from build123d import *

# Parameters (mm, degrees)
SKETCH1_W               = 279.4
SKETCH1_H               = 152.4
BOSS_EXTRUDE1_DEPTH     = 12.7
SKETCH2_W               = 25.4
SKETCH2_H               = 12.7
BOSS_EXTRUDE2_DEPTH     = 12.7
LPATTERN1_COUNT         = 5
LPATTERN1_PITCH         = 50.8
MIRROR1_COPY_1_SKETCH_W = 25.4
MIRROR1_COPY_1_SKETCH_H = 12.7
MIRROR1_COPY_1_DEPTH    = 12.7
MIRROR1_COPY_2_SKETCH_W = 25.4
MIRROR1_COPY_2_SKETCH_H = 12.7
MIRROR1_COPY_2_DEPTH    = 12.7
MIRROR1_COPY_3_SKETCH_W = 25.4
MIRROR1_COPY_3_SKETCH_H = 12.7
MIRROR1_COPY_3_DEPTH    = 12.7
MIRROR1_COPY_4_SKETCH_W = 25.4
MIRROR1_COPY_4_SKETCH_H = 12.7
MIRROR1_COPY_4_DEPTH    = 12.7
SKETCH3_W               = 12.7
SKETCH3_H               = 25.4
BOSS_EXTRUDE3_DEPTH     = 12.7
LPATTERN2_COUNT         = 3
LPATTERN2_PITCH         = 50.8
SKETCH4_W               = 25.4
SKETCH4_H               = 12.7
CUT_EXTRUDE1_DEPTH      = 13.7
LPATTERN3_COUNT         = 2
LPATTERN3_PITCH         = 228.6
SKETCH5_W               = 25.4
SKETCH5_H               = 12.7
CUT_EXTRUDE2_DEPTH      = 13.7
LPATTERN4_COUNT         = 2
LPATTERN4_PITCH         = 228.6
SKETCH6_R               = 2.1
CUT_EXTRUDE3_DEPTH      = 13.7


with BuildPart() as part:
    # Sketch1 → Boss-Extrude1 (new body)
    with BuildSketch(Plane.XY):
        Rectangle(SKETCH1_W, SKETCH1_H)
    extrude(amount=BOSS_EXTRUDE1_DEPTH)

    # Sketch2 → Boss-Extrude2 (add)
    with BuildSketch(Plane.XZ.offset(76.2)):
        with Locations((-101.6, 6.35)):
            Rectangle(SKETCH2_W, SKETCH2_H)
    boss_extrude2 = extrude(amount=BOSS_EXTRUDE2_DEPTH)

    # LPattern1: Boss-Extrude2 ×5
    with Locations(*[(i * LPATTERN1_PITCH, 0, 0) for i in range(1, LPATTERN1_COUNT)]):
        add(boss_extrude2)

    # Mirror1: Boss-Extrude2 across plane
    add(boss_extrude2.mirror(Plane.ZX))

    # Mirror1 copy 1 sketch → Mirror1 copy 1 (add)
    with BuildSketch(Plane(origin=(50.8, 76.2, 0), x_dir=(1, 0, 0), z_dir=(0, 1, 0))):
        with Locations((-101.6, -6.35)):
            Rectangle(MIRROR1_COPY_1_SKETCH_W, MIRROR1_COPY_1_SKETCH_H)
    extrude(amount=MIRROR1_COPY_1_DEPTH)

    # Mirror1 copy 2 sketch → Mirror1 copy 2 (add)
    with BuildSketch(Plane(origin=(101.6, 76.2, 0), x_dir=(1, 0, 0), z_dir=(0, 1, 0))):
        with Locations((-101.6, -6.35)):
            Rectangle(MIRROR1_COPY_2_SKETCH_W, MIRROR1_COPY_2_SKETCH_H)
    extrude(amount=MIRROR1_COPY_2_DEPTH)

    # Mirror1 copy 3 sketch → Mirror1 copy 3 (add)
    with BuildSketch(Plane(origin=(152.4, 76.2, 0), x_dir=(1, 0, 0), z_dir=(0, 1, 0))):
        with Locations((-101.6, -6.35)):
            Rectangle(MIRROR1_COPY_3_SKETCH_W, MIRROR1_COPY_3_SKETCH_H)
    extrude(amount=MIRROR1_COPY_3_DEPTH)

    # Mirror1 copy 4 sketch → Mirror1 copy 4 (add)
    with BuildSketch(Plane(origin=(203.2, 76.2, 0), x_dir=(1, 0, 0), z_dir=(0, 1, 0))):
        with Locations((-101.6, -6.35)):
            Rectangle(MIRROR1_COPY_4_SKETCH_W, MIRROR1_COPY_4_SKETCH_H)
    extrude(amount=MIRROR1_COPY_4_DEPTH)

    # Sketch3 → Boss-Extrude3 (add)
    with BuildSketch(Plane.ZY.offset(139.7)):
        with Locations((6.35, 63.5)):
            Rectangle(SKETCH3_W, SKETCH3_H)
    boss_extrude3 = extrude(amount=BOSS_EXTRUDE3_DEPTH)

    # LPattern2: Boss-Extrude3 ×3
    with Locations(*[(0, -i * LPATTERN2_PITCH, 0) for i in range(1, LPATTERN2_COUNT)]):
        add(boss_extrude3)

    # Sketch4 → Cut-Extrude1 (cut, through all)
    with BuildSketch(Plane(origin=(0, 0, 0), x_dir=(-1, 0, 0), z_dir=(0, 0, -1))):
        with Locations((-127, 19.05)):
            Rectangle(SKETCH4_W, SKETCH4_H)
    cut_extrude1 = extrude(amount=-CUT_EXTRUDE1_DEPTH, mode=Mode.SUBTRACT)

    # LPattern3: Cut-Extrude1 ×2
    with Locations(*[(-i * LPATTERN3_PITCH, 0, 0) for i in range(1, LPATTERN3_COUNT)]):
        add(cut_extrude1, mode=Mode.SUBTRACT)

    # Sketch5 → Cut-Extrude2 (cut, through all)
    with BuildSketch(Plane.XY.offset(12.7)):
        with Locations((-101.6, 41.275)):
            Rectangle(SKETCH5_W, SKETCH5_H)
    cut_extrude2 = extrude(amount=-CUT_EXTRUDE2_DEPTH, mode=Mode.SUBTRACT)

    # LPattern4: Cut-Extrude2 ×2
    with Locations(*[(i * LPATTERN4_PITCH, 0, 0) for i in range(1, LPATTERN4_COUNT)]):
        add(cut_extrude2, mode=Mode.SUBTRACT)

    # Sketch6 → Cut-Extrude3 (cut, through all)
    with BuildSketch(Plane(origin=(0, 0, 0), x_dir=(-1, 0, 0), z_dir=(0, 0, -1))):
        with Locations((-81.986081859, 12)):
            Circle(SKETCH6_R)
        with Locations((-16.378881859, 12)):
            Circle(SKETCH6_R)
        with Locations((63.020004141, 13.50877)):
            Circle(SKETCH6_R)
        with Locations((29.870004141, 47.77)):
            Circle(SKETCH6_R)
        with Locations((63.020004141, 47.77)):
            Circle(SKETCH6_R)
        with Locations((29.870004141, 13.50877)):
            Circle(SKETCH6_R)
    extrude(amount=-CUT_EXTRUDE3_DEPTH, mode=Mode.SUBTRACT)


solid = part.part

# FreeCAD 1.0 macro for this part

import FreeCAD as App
import Part
import Sketcher

V = App.Vector
Q = App.Units.Quantity

doc = App.newDocument("Part")
body = doc.addObject("PartDesign::Body", "Body")

sketch1 = doc.addObject("Sketcher::SketchObject", "Sketch")
body.addObject(sketch1)
sketch1.AttachmentSupport = (doc.XY_Plane, [""])
sketch1.MapMode = "FlatFace"
sketch1.addGeometry(Part.LineSegment(V(-140, 76, 0), V(-140, -76, 0)), False)
sketch1.addGeometry(Part.LineSegment(V(-140, -76, 0), V(140, -76, 0)), False)
sketch1.addGeometry(Part.LineSegment(V(140, -76, 0), V(140, 76, 0)), False)
sketch1.addGeometry(Part.LineSegment(V(140, 76, 0), V(-140, 76, 0)), False)
sketch1.addConstraint(Sketcher.Constraint("Coincident", 0, 2, 1, 1))
sketch1.addConstraint(Sketcher.Constraint("Coincident", 1, 2, 2, 1))
sketch1.addConstraint(Sketcher.Constraint("Coincident", 2, 2, 3, 1))
sketch1.addConstraint(Sketcher.Constraint("Coincident", 3, 2, 0, 1))
sketch1.addConstraint(Sketcher.Constraint("Vertical", 0))
sketch1.addConstraint(Sketcher.Constraint("Horizontal", 1))
sketch1.addConstraint(Sketcher.Constraint("Vertical", 2))
sketch1.addConstraint(Sketcher.Constraint("Horizontal", 3))
sketch1.addConstraint(Sketcher.Constraint("Symmetric", 0, 2, 2, 2, -1, 1))
sketch1.addConstraint(Sketcher.Constraint("DistanceX", 1, 1, 1, 2, Q("11 in")))
sketch1.addConstraint(Sketcher.Constraint("DistanceY", 0, 2, 0, 1, Q("6 in")))
pad1 = doc.addObject("PartDesign::Pad", "Pad")
body.addObject(pad1)
pad1.Profile = sketch1
pad1.Length = Q("0.5 in")

sketch2 = doc.addObject("Sketcher::SketchObject", "Sketch001")
body.addObject(sketch2)
sketch2.AttachmentSupport = (doc.XZ_Plane, [""])
sketch2.MapMode = "FlatFace"
sketch2.AttachmentOffset = App.Placement(V(0, 0, 3 * 25.4), App.Rotation())
sketch2.addGeometry(Part.LineSegment(V(-114, 13, 0), V(-114, 0, 0)), False)
sketch2.addGeometry(Part.LineSegment(V(-114, 0, 0), V(-89, 0, 0)), False)
sketch2.addGeometry(Part.LineSegment(V(-89, 0, 0), V(-89, 13, 0)), False)
sketch2.addGeometry(Part.LineSegment(V(-89, 13, 0), V(-114, 13, 0)), False)
sketch2.addConstraint(Sketcher.Constraint("Coincident", 0, 2, 1, 1))
sketch2.addConstraint(Sketcher.Constraint("Coincident", 1, 2, 2, 1))
sketch2.addConstraint(Sketcher.Constraint("Coincident", 2, 2, 3, 1))
sketch2.addConstraint(Sketcher.Constraint("Coincident", 3, 2, 0, 1))
sketch2.addConstraint(Sketcher.Constraint("Vertical", 0))
sketch2.addConstraint(Sketcher.Constraint("Horizontal", 1))
sketch2.addConstraint(Sketcher.Constraint("Vertical", 2))
sketch2.addConstraint(Sketcher.Constraint("Horizontal", 3))
sketch2.addConstraint(Sketcher.Constraint("PointOnObject", 0, 2, -1))
sketch2.addConstraint(Sketcher.Constraint("DistanceX", 1, 1, 1, 2, Q("1 in")))
sketch2.addConstraint(Sketcher.Constraint("DistanceY", 0, 2, 0, 1, Q("0.5 in")))
sketch2.addConstraint(Sketcher.Constraint("DistanceX", 0, 2, -1, 1, Q("4.5 in")))
pad2 = doc.addObject("PartDesign::Pad", "Pad001")
body.addObject(pad2)
pad2.Profile = sketch2
pad2.Length = Q("0.5 in")
doc.recompute()

linearpattern = doc.addObject("PartDesign::LinearPattern", "LinearPattern")
body.addObject(linearpattern)
linearpattern.Originals = [pad2]
linearpattern.Direction = (doc.X_Axis, [""])
linearpattern.Mode = "offset"
linearpattern.Offset = Q("2 in")
linearpattern.Occurrences = 5
body.Tip = linearpattern
doc.recompute()

mirrored = doc.addObject("PartDesign::Mirrored", "Mirrored")
body.addObject(mirrored)
mirrored.Originals = [pad2]
mirrored.MirrorPlane = (doc.XZ_Plane, [""])
body.Tip = mirrored

sketch3 = doc.addObject("Sketcher::SketchObject", "Sketch002")
body.addObject(sketch3)
sketch3.AttachmentSupport = (doc.XZ_Plane, [""])
sketch3.MapMode = "FlatFace"
sketch3.AttachmentOffset = App.Placement(V(0, 0, -3 * 25.4), App.Rotation())
sketch3.addGeometry(Part.LineSegment(V(-64, 0, 0), V(-64, 13, 0)), False)
sketch3.addGeometry(Part.LineSegment(V(-64, 13, 0), V(-38, 13, 0)), False)
sketch3.addGeometry(Part.LineSegment(V(-38, 13, 0), V(-38, 0, 0)), False)
sketch3.addGeometry(Part.LineSegment(V(-38, 0, 0), V(-64, 0, 0)), False)
sketch3.addConstraint(Sketcher.Constraint("Coincident", 0, 2, 1, 1))
sketch3.addConstraint(Sketcher.Constraint("Coincident", 1, 2, 2, 1))
sketch3.addConstraint(Sketcher.Constraint("Coincident", 2, 2, 3, 1))
sketch3.addConstraint(Sketcher.Constraint("Coincident", 3, 2, 0, 1))
sketch3.addConstraint(Sketcher.Constraint("Vertical", 0))
sketch3.addConstraint(Sketcher.Constraint("Horizontal", 1))
sketch3.addConstraint(Sketcher.Constraint("Vertical", 2))
sketch3.addConstraint(Sketcher.Constraint("Horizontal", 3))
sketch3.addConstraint(Sketcher.Constraint("PointOnObject", 2, 2, -1))
sketch3.addConstraint(Sketcher.Constraint("DistanceX", 1, 1, 1, 2, Q("1 in")))
sketch3.addConstraint(Sketcher.Constraint("DistanceY", 0, 1, 0, 2, Q("0.5 in")))
sketch3.addConstraint(Sketcher.Constraint("DistanceX", 0, 2, -1, 1, Q("2.5 in")))
pad3 = doc.addObject("PartDesign::Pad", "Pad002")
body.addObject(pad3)
pad3.Profile = sketch3
pad3.Length = Q("0.5 in")
pad3.Reversed = True

sketch4 = doc.addObject("Sketcher::SketchObject", "Sketch003")
body.addObject(sketch4)
sketch4.AttachmentSupport = (doc.XZ_Plane, [""])
sketch4.MapMode = "FlatFace"
sketch4.AttachmentOffset = App.Placement(V(0, 0, -3 * 25.4), App.Rotation())
sketch4.addGeometry(Part.LineSegment(V(-13, 0, 0), V(-13, 13, 0)), False)
sketch4.addGeometry(Part.LineSegment(V(-13, 13, 0), V(13, 13, 0)), False)
sketch4.addGeometry(Part.LineSegment(V(13, 13, 0), V(13, 0, 0)), False)
sketch4.addGeometry(Part.LineSegment(V(13, 0, 0), V(-13, 0, 0)), False)
sketch4.addConstraint(Sketcher.Constraint("Coincident", 0, 2, 1, 1))
sketch4.addConstraint(Sketcher.Constraint("Coincident", 1, 2, 2, 1))
sketch4.addConstraint(Sketcher.Constraint("Coincident", 2, 2, 3, 1))
sketch4.addConstraint(Sketcher.Constraint("Coincident", 3, 2, 0, 1))
sketch4.addConstraint(Sketcher.Constraint("Vertical", 0))
sketch4.addConstraint(Sketcher.Constraint("Horizontal", 1))
sketch4.addConstraint(Sketcher.Constraint("Vertical", 2))
sketch4.addConstraint(Sketcher.Constraint("Horizontal", 3))
sketch4.addConstraint(Sketcher.Constraint("Symmetric", 2, 2, 3, 2, -1, 1))
sketch4.addConstraint(Sketcher.Constraint("DistanceX", 1, 1, 1, 2, Q("1 in")))
sketch4.addConstraint(Sketcher.Constraint("DistanceY", 0, 1, 0, 2, Q("0.5 in")))
pad4 = doc.addObject("PartDesign::Pad", "Pad003")
body.addObject(pad4)
pad4.Profile = sketch4
pad4.Length = Q("0.5 in")
pad4.Reversed = True

sketch5 = doc.addObject("Sketcher::SketchObject", "Sketch004")
body.addObject(sketch5)
sketch5.AttachmentSupport = (doc.XZ_Plane, [""])
sketch5.MapMode = "FlatFace"
sketch5.AttachmentOffset = App.Placement(V(0, 0, -3 * 25.4), App.Rotation())
sketch5.addGeometry(Part.LineSegment(V(38, 0, 0), V(38, 13, 0)), False)
sketch5.addGeometry(Part.LineSegment(V(38, 13, 0), V(64, 13, 0)), False)
sketch5.addGeometry(Part.LineSegment(V(64, 13, 0), V(64, 0, 0)), False)
sketch5.addGeometry(Part.LineSegment(V(64, 0, 0), V(38, 0, 0)), False)
sketch5.addConstraint(Sketcher.Constraint("Coincident", 0, 2, 1, 1))
sketch5.addConstraint(Sketcher.Constraint("Coincident", 1, 2, 2, 1))
sketch5.addConstraint(Sketcher.Constraint("Coincident", 2, 2, 3, 1))
sketch5.addConstraint(Sketcher.Constraint("Coincident", 3, 2, 0, 1))
sketch5.addConstraint(Sketcher.Constraint("Vertical", 0))
sketch5.addConstraint(Sketcher.Constraint("Horizontal", 1))
sketch5.addConstraint(Sketcher.Constraint("Vertical", 2))
sketch5.addConstraint(Sketcher.Constraint("Horizontal", 3))
sketch5.addConstraint(Sketcher.Constraint("PointOnObject", 2, 2, -1))
sketch5.addConstraint(Sketcher.Constraint("DistanceX", 1, 1, 1, 2, Q("1 in")))
sketch5.addConstraint(Sketcher.Constraint("DistanceY", 0, 1, 0, 2, Q("0.5 in")))
sketch5.addConstraint(Sketcher.Constraint("DistanceX", -1, 1, 0, 2, Q("1.5 in")))
pad5 = doc.addObject("PartDesign::Pad", "Pad004")
body.addObject(pad5)
pad5.Profile = sketch5
pad5.Length = Q("0.5 in")
pad5.Reversed = True

sketch6 = doc.addObject("Sketcher::SketchObject", "Sketch005")
body.addObject(sketch6)
sketch6.AttachmentSupport = (doc.XZ_Plane, [""])
sketch6.MapMode = "FlatFace"
sketch6.AttachmentOffset = App.Placement(V(0, 0, -3 * 25.4), App.Rotation())
sketch6.addGeometry(Part.LineSegment(V(89, 0, 0), V(89, 13, 0)), False)
sketch6.addGeometry(Part.LineSegment(V(89, 13, 0), V(114, 13, 0)), False)
sketch6.addGeometry(Part.LineSegment(V(114, 13, 0), V(114, 0, 0)), False)
sketch6.addGeometry(Part.LineSegment(V(114, 0, 0), V(89, 0, 0)), False)
sketch6.addConstraint(Sketcher.Constraint("Coincident", 0, 2, 1, 1))
sketch6.addConstraint(Sketcher.Constraint("Coincident", 1, 2, 2, 1))
sketch6.addConstraint(Sketcher.Constraint("Coincident", 2, 2, 3, 1))
sketch6.addConstraint(Sketcher.Constraint("Coincident", 3, 2, 0, 1))
sketch6.addConstraint(Sketcher.Constraint("Vertical", 0))
sketch6.addConstraint(Sketcher.Constraint("Horizontal", 1))
sketch6.addConstraint(Sketcher.Constraint("Vertical", 2))
sketch6.addConstraint(Sketcher.Constraint("Horizontal", 3))
sketch6.addConstraint(Sketcher.Constraint("PointOnObject", 2, 2, -1))
sketch6.addConstraint(Sketcher.Constraint("DistanceX", 1, 1, 1, 2, Q("1 in")))
sketch6.addConstraint(Sketcher.Constraint("DistanceY", 0, 1, 0, 2, Q("0.5 in")))
sketch6.addConstraint(Sketcher.Constraint("DistanceX", -1, 1, 0, 2, Q("3.5 in")))
pad6 = doc.addObject("PartDesign::Pad", "Pad005")
body.addObject(pad6)
pad6.Profile = sketch6
pad6.Length = Q("0.5 in")
pad6.Reversed = True

sketch7 = doc.addObject("Sketcher::SketchObject", "Sketch006")
body.addObject(sketch7)
sketch7.AttachmentSupport = (doc.YZ_Plane, [""])
sketch7.MapMode = "FlatFace"
sketch7.AttachmentOffset = App.Placement(V(0, 0, -5.5 * 25.4), App.Rotation())
sketch7.addGeometry(Part.LineSegment(V(76, 0, 0), V(51, 0, 0)), False)
sketch7.addGeometry(Part.LineSegment(V(51, 0, 0), V(51, 13, 0)), False)
sketch7.addGeometry(Part.LineSegment(V(51, 13, 0), V(76, 13, 0)), False)
sketch7.addGeometry(Part.LineSegment(V(76, 13, 0), V(76, 0, 0)), False)
sketch7.addConstraint(Sketcher.Constraint("Coincident", 0, 2, 1, 1))
sketch7.addConstraint(Sketcher.Constraint("Coincident", 1, 2, 2, 1))
sketch7.addConstraint(Sketcher.Constraint("Coincident", 2, 2, 3, 1))
sketch7.addConstraint(Sketcher.Constraint("Coincident", 3, 2, 0, 1))
sketch7.addConstraint(Sketcher.Constraint("Horizontal", 0))
sketch7.addConstraint(Sketcher.Constraint("Vertical", 1))
sketch7.addConstraint(Sketcher.Constraint("Horizontal", 2))
sketch7.addConstraint(Sketcher.Constraint("Vertical", 3))
sketch7.addConstraint(Sketcher.Constraint("PointOnObject", 0, 2, -1))
sketch7.addConstraint(Sketcher.Constraint("DistanceX", 0, 2, 0, 1, Q("1 in")))
sketch7.addConstraint(Sketcher.Constraint("DistanceY", 1, 1, 1, 2, Q("0.5 in")))
sketch7.addConstraint(Sketcher.Constraint("DistanceX", -1, 1, 0, 2, Q("2 in")))
pad7 = doc.addObject("PartDesign::Pad", "Pad006")
body.addObject(pad7)
pad7.Profile = sketch7
pad7.Length = Q("0.5 in")
pad7.Reversed = True
doc.recompute()

linearpattern2 = doc.addObject("PartDesign::LinearPattern", "LinearPattern001")
body.addObject(linearpattern2)
linearpattern2.Originals = [pad7]
linearpattern2.Direction = (doc.Y_Axis, [""])
linearpattern2.Mode = "offset"
linearpattern2.Offset = Q("2 in")
linearpattern2.Occurrences = 3
linearpattern2.Reversed = True
body.Tip = linearpattern2

sketch8 = doc.addObject("Sketcher::SketchObject", "Sketch007")
body.addObject(sketch8)
sketch8.AttachmentSupport = (doc.XY_Plane, [""])
sketch8.MapMode = "FlatFace"
sketch8.addGeometry(Part.LineSegment(V(140, 25, 0), V(140, 13, 0)), False)
sketch8.addGeometry(Part.LineSegment(V(140, 13, 0), V(114, 13, 0)), False)
sketch8.addGeometry(Part.LineSegment(V(114, 13, 0), V(114, 25, 0)), False)
sketch8.addGeometry(Part.LineSegment(V(114, 25, 0), V(140, 25, 0)), False)
sketch8.addConstraint(Sketcher.Constraint("Coincident", 0, 2, 1, 1))
sketch8.addConstraint(Sketcher.Constraint("Coincident", 1, 2, 2, 1))
sketch8.addConstraint(Sketcher.Constraint("Coincident", 2, 2, 3, 1))
sketch8.addConstraint(Sketcher.Constraint("Coincident", 3, 2, 0, 1))
sketch8.addConstraint(Sketcher.Constraint("Vertical", 0))
sketch8.addConstraint(Sketcher.Constraint("Horizontal", 1))
sketch8.addConstraint(Sketcher.Constraint("Vertical", 2))
sketch8.addConstraint(Sketcher.Constraint("Horizontal", 3))
sketch8.addConstraint(Sketcher.Constraint("DistanceX", 1, 2, 1, 1, Q("1 in")))
sketch8.addConstraint(Sketcher.Constraint("DistanceY", 0, 2, 0, 1, Q("0.5 in")))
sketch8.addConstraint(Sketcher.Constraint("DistanceY", -1, 1, 2, 2, Q("1 in")))
sketch8.addConstraint(Sketcher.Constraint("DistanceX", -1, 1, 0, 2, Q("5.5 in")))
pocket1 = doc.addObject("PartDesign::Pocket", "Pocket")
body.addObject(pocket1)
pocket1.Profile = sketch8
pocket1.Type = "ThroughAll"
pocket1.Reversed = True
doc.recompute()

linearpattern3 = doc.addObject("PartDesign::LinearPattern", "LinearPattern002")
body.addObject(linearpattern3)
linearpattern3.Originals = [pocket1]
linearpattern3.Direction = (doc.X_Axis, [""])
linearpattern3.Mode = "offset"
linearpattern3.Offset = Q("9 in")
linearpattern3.Occurrences = 2
linearpattern3.Reversed = True
body.Tip = linearpattern3

sketch9 = doc.addObject("Sketcher::SketchObject", "Sketch008")
body.addObject(sketch9)
sketch9.AttachmentSupport = (doc.XY_Plane, [""])
sketch9.MapMode = "FlatFace"
sketch9.AttachmentOffset = App.Placement(V(0, 0, 0.5 * 25.4), App.Rotation())
sketch9.addGeometry(Part.LineSegment(V(-114, 48, 0), V(-114, 35, 0)), False)
sketch9.addGeometry(Part.LineSegment(V(-114, 35, 0), V(-89, 35, 0)), False)
sketch9.addGeometry(Part.LineSegment(V(-89, 35, 0), V(-89, 48, 0)), False)
sketch9.addGeometry(Part.LineSegment(V(-89, 48, 0), V(-114, 48, 0)), False)
sketch9.addConstraint(Sketcher.Constraint("Coincident", 0, 2, 1, 1))
sketch9.addConstraint(Sketcher.Constraint("Coincident", 1, 2, 2, 1))
sketch9.addConstraint(Sketcher.Constraint("Coincident", 2, 2, 3, 1))
sketch9.addConstraint(Sketcher.Constraint("Coincident", 3, 2, 0, 1))
sketch9.addConstraint(Sketcher.Constraint("Vertical", 0))
sketch9.addConstraint(Sketcher.Constraint("Horizontal", 1))
sketch9.addConstraint(Sketcher.Constraint("Vertical", 2))
sketch9.addConstraint(Sketcher.Constraint("Horizontal", 3))
sketch9.addConstraint(Sketcher.Constraint("DistanceX", 1, 1, 1, 2, Q("1 in")))
sketch9.addConstraint(Sketcher.Constraint("DistanceY", 0, 2, 0, 1, Q("0.5 in")))
sketch9.addConstraint(Sketcher.Constraint("DistanceX", 0, 2, -1, 1, Q("4.5 in")))
sketch9.addConstraint(Sketcher.Constraint("DistanceY", -1, 1, 0, 2, Q("1.375 in")))
pocket2 = doc.addObject("PartDesign::Pocket", "Pocket001")
body.addObject(pocket2)
pocket2.Profile = sketch9
pocket2.Type = "ThroughAll"
doc.recompute()

linearpattern4 = doc.addObject("PartDesign::LinearPattern", "LinearPattern003")
body.addObject(linearpattern4)
linearpattern4.Originals = [pocket2]
linearpattern4.Direction = (doc.X_Axis, [""])
linearpattern4.Mode = "offset"
linearpattern4.Offset = Q("9 in")
linearpattern4.Occurrences = 2
body.Tip = linearpattern4

sketch10 = doc.addObject("Sketcher::SketchObject", "Sketch009")
body.addObject(sketch10)
sketch10.AttachmentSupport = (doc.XY_Plane, [""])
sketch10.MapMode = "FlatFace"
sketch10.addGeometry(Part.Circle(V(82, 12, 0), V(0, 0, 1), 2.1), False)
sketch10.addGeometry(Part.Circle(V(16.4, 12, 0), V(0, 0, 1), 2.1), False)
sketch10.addGeometry(Part.Circle(V(-63, 13.5, 0), V(0, 0, 1), 2.1), False)
sketch10.addGeometry(Part.Circle(V(-29.9, 47.8, 0), V(0, 0, 1), 2.1), False)
sketch10.addGeometry(Part.Circle(V(-63, 47.8, 0), V(0, 0, 1), 2.1), False)
sketch10.addGeometry(Part.Circle(V(-29.9, 13.5, 0), V(0, 0, 1), 2.1), False)
sketch10.addConstraint(Sketcher.Constraint("Equal", 0, 1))
sketch10.addConstraint(Sketcher.Constraint("Equal", 1, 2))
sketch10.addConstraint(Sketcher.Constraint("Equal", 2, 3))
sketch10.addConstraint(Sketcher.Constraint("Equal", 3, 4))
sketch10.addConstraint(Sketcher.Constraint("Equal", 4, 5))
sketch10.addConstraint(Sketcher.Constraint("Horizontal", 0, 3, 1, 3))
sketch10.addConstraint(Sketcher.Constraint("Horizontal", 3, 3, 4, 3))
sketch10.addConstraint(Sketcher.Constraint("Horizontal", 2, 3, 5, 3))
sketch10.addConstraint(Sketcher.Constraint("Vertical", 2, 3, 4, 3))
sketch10.addConstraint(Sketcher.Constraint("Vertical", 3, 3, 5, 3))
sketch10.addConstraint(Sketcher.Constraint("Diameter", 0, 4.2))
sketch10.addConstraint(Sketcher.Constraint("DistanceY", -1, 1, 0, 3, 12.0))
sketch10.addConstraint(Sketcher.Constraint("DistanceY", -1, 1, 3, 3, 47.77))
sketch10.addConstraint(Sketcher.Constraint("DistanceX", 1, 3, 0, 3, 65.6072))
sketch10.addConstraint(Sketcher.Constraint("DistanceX", 2, 3, 3, 3, 33.15))
sketch10.addConstraint(Sketcher.Constraint("DistanceX", -1, 1, 0, 3, 81.986082))
sketch10.addConstraint(Sketcher.Constraint("DistanceY", -1, 1, 2, 3, 13.50877))
sketch10.addConstraint(Sketcher.Constraint("DistanceX", 2, 3, -1, 1, 63.020004))
pocket3 = doc.addObject("PartDesign::Pocket", "Pocket002")
body.addObject(pocket3)
pocket3.Profile = sketch10
pocket3.Type = "ThroughAll"
pocket3.Reversed = True

doc.recompute()
